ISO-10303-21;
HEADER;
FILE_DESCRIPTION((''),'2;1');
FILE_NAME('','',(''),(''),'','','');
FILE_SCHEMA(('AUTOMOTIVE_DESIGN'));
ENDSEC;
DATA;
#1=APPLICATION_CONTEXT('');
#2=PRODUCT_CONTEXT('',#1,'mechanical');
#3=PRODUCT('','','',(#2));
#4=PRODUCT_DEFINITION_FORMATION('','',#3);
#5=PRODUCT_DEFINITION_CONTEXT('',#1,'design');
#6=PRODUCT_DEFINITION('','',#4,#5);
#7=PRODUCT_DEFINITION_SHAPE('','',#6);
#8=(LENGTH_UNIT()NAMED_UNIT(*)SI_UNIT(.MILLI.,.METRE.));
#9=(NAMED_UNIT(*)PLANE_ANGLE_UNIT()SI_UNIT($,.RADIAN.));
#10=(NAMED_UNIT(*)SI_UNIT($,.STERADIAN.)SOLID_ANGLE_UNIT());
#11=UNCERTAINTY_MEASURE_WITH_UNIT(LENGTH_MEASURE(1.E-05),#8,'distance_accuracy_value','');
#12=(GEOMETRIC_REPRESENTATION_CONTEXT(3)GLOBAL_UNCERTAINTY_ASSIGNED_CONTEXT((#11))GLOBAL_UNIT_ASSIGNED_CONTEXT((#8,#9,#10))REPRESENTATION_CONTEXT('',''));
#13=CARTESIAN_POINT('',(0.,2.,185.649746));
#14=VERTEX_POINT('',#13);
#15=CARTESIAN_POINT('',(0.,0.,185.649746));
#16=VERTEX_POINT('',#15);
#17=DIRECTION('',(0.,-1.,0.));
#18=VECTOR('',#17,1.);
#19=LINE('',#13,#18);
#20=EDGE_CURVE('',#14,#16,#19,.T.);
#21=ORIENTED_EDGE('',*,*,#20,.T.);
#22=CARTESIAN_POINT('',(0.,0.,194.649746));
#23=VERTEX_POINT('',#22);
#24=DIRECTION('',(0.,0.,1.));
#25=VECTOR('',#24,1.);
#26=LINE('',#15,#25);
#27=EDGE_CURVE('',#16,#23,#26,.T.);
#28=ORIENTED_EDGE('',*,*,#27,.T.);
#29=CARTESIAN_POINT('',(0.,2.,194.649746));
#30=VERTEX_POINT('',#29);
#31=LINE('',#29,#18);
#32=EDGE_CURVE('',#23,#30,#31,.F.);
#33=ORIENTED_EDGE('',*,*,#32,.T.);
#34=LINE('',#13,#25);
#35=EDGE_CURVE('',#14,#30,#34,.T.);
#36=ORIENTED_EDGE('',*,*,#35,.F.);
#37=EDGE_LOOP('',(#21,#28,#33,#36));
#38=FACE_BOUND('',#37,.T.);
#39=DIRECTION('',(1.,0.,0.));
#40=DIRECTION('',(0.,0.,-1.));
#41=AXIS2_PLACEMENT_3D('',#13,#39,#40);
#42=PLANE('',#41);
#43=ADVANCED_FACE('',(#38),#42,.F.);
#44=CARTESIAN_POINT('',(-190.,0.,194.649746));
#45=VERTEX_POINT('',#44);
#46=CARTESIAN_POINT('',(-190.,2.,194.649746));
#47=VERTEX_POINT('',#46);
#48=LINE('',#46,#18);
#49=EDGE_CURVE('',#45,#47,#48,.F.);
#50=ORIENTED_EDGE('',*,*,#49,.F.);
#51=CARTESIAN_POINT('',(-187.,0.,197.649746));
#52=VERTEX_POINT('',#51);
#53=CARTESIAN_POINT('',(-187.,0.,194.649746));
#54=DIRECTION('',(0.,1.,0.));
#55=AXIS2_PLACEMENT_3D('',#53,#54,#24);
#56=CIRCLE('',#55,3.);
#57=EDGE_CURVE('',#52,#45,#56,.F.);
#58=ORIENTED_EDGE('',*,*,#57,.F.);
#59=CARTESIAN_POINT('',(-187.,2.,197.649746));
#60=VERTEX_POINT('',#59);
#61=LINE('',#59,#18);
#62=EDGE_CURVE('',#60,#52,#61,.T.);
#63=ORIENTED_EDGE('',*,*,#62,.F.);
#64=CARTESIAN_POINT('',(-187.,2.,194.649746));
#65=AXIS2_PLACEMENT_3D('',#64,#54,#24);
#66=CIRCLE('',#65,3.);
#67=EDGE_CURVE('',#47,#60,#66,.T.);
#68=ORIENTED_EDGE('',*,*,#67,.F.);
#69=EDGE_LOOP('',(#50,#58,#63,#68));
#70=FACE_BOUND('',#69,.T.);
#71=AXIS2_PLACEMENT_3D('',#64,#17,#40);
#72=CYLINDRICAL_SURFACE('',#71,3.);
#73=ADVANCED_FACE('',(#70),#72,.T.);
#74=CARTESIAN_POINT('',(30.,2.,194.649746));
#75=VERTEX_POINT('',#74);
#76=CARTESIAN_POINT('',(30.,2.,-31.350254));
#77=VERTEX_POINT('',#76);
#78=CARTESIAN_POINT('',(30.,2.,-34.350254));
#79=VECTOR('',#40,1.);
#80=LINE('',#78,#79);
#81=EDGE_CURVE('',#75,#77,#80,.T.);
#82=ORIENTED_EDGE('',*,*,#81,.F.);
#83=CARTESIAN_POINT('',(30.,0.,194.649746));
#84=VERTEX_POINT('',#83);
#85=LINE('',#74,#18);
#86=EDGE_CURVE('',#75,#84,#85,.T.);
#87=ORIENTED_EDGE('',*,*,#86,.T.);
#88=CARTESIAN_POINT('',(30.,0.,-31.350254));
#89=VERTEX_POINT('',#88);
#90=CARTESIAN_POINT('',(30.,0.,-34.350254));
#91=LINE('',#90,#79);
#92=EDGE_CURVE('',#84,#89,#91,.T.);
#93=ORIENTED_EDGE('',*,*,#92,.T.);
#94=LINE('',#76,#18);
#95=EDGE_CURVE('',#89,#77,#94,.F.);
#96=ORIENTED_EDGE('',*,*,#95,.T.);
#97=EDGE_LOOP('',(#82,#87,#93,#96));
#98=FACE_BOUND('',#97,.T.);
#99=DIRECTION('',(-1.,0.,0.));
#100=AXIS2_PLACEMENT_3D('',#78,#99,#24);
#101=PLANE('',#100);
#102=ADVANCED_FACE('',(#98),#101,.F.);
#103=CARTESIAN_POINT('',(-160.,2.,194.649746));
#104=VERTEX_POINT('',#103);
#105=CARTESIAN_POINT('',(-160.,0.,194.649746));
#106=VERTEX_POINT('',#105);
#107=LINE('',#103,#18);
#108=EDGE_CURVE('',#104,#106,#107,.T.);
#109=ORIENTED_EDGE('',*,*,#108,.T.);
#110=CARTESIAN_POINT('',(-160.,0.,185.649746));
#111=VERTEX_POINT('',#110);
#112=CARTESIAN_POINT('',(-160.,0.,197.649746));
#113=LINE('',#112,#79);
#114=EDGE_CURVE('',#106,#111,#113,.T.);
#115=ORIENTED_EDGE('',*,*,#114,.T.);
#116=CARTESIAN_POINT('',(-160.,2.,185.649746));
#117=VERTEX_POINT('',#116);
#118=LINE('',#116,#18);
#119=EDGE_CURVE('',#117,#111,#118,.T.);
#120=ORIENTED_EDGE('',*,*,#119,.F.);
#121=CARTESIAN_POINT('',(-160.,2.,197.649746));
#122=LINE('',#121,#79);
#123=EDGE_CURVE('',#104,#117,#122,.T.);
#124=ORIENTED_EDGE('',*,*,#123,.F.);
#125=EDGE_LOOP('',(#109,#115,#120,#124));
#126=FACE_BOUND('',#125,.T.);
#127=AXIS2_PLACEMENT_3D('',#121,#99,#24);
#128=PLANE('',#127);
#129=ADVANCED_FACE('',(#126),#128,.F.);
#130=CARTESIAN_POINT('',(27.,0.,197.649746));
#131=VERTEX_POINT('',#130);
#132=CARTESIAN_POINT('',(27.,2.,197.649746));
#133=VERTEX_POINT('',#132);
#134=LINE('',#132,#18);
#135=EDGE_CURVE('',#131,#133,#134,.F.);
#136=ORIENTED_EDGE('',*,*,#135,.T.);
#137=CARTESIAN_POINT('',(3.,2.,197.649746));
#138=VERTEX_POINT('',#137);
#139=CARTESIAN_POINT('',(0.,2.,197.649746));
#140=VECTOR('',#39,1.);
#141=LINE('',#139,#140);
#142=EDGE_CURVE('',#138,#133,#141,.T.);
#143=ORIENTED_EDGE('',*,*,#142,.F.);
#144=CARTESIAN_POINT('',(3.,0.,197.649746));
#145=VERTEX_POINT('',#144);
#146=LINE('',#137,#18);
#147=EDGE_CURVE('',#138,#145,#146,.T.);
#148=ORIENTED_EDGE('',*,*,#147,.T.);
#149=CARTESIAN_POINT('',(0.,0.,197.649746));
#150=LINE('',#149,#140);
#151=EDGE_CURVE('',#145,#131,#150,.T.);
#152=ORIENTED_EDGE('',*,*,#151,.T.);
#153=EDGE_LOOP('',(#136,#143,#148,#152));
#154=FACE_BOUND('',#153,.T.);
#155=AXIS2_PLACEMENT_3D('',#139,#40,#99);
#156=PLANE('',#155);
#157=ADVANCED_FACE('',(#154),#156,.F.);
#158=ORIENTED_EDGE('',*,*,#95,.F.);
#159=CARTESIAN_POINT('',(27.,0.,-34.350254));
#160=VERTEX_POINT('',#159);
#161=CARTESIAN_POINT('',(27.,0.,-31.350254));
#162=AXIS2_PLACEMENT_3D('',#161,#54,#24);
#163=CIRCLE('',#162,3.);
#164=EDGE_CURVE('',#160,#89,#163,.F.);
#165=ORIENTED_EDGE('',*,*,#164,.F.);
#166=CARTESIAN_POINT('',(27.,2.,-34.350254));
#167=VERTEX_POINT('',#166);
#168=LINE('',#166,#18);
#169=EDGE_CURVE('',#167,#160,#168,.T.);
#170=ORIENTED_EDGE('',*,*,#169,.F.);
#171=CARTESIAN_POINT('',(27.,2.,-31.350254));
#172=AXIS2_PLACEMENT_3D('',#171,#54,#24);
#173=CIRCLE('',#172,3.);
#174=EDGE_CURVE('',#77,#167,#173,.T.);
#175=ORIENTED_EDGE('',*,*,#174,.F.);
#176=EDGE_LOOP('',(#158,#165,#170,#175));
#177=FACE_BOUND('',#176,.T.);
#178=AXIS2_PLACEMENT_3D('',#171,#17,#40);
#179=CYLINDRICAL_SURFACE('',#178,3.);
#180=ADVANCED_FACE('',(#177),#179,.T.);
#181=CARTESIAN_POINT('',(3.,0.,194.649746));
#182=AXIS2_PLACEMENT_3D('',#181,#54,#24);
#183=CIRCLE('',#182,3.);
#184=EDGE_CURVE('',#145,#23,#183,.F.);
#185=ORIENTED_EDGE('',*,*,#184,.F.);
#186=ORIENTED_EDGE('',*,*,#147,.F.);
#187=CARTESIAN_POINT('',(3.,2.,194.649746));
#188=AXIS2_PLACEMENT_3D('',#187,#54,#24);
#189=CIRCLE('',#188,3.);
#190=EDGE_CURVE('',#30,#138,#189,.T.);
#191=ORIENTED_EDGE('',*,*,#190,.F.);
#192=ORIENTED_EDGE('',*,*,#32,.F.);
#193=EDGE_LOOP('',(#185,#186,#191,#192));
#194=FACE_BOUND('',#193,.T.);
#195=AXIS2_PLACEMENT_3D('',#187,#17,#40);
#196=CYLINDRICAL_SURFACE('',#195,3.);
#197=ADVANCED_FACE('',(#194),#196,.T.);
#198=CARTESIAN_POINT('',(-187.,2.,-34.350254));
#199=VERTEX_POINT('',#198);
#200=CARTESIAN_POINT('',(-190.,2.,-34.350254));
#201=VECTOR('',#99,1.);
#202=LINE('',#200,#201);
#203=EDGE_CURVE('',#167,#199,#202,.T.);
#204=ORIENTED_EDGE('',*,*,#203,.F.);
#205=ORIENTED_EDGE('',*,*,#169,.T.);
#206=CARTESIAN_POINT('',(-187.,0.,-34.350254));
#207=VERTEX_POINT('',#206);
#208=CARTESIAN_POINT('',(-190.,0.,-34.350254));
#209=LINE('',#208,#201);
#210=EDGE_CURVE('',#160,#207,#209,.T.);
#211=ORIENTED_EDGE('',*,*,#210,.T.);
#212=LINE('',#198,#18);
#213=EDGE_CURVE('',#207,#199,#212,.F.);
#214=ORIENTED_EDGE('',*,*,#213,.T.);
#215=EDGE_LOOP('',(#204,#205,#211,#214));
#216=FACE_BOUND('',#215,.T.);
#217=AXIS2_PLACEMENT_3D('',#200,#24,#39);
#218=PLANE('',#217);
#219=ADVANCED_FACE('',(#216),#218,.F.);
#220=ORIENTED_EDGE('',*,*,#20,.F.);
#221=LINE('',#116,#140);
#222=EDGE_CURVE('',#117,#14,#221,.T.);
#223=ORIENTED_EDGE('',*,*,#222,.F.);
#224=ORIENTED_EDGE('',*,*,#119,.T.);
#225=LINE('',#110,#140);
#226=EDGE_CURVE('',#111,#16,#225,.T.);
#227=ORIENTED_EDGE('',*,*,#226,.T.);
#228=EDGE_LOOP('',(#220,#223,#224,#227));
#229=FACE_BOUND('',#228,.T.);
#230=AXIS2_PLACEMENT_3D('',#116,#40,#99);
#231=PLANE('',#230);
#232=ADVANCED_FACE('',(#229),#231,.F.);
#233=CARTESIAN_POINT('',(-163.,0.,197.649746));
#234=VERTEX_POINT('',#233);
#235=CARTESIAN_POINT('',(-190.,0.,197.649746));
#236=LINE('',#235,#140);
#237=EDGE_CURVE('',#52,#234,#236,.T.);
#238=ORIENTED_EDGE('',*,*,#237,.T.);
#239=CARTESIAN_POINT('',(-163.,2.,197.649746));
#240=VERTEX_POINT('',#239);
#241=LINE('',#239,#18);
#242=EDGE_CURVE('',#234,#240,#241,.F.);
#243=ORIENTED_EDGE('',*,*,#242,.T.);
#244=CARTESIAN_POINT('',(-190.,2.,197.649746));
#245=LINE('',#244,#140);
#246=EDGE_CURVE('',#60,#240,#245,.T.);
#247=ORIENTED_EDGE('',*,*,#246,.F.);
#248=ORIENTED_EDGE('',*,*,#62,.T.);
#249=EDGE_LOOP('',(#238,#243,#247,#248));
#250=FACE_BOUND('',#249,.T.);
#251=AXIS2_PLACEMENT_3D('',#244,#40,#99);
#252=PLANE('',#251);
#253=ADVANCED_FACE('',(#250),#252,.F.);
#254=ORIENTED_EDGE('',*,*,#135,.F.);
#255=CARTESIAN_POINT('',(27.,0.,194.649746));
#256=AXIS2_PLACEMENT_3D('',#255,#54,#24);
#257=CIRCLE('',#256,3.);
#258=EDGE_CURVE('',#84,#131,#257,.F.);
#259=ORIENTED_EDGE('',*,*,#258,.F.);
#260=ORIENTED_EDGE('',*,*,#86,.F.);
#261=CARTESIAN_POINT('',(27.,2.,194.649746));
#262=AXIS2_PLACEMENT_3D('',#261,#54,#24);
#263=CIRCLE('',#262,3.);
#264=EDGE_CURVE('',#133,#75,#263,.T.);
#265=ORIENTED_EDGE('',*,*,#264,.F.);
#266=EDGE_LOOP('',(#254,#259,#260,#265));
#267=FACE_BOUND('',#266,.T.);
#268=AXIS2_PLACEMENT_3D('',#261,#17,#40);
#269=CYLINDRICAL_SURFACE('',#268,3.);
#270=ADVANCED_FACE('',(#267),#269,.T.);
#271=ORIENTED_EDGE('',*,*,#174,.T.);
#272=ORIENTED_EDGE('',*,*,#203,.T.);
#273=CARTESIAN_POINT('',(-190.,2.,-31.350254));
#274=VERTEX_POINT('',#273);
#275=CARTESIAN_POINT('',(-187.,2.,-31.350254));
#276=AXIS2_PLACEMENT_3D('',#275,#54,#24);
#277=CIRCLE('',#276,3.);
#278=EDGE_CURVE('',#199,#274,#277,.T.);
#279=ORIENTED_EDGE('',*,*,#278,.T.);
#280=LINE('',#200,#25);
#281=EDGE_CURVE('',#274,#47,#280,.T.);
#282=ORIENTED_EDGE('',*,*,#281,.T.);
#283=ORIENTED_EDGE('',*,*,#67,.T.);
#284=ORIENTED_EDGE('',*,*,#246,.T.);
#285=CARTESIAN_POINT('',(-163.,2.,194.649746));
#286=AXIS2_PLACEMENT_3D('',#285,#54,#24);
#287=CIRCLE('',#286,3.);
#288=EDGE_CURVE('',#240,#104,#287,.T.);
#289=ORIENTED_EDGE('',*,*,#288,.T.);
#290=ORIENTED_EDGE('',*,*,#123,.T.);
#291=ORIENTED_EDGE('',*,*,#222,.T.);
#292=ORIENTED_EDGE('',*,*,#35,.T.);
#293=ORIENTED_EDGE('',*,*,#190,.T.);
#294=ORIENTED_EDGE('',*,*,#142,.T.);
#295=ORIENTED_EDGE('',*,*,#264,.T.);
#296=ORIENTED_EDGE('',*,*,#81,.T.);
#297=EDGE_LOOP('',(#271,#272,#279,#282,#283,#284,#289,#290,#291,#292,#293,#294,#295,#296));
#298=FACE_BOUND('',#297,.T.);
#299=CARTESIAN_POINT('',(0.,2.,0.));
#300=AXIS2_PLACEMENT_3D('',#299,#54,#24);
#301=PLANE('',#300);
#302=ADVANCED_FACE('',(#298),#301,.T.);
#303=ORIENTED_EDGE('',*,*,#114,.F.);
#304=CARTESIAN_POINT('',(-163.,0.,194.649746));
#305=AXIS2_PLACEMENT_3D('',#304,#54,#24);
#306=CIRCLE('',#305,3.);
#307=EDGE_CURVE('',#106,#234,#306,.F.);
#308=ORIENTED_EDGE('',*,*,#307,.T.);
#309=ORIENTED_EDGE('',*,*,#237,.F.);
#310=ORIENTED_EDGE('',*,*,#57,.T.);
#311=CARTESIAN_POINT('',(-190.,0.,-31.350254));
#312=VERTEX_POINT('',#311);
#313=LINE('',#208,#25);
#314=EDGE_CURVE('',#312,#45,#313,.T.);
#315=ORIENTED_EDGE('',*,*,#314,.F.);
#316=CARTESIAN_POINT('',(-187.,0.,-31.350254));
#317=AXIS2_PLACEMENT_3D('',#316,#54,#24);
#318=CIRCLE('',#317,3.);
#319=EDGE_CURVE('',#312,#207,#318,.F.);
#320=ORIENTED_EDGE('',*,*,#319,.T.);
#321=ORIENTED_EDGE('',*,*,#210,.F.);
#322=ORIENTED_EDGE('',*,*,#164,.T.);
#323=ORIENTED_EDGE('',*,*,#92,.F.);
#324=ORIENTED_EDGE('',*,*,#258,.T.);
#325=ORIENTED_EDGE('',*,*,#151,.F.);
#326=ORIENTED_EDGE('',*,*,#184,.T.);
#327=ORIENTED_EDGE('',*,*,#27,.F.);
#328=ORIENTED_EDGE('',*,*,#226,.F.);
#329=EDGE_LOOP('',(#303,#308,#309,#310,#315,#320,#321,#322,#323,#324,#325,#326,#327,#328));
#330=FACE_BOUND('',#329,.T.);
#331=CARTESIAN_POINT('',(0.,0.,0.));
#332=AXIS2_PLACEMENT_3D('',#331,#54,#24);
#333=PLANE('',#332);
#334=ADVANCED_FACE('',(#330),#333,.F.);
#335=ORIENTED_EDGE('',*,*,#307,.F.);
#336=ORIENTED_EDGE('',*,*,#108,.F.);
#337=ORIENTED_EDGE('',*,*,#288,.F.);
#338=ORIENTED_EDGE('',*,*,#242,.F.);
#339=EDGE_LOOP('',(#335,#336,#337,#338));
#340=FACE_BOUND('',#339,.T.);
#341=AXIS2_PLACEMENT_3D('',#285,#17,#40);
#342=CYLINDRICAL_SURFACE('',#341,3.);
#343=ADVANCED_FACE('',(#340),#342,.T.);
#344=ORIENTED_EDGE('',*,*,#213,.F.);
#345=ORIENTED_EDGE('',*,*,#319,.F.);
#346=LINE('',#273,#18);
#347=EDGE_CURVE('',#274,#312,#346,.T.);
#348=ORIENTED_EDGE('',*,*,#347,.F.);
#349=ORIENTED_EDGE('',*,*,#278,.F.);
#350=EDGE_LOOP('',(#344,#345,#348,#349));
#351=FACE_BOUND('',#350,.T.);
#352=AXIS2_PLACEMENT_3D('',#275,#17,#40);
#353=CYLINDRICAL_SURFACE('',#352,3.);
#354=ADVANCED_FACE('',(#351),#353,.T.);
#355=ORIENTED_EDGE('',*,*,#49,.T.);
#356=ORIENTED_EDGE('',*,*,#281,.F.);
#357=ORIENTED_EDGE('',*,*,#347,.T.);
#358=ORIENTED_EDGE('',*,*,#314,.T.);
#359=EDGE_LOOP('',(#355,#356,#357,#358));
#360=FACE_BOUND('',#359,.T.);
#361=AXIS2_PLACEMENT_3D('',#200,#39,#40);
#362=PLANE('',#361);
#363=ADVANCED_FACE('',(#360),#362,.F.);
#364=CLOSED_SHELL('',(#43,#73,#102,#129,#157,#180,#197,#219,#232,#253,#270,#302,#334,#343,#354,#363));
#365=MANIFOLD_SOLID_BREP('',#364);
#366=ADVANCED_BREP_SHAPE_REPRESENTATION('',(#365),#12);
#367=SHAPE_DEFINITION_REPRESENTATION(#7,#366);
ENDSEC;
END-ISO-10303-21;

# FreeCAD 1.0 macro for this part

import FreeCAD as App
import Part
import Sketcher

V = App.Vector


def edges_at(feature, points):
    """Names of the edges that pass closest to the given points."""
    edges = feature.Shape.Edges
    near = lambda p: min(range(len(edges)), key=lambda i: edges[i].distToShape(Part.Vertex(*p))[0])
    return sorted({f"Edge{near(p) + 1}" for p in points})

doc = App.newDocument("Part")
params = doc.addObject("Spreadsheet::Sheet", "Params")
for row, (alias, value) in enumerate([
    ("sketch1_width", "160 mm"),
    ("sketch1_width2", "30 mm"),
    ("sketch1_height", "12 mm"),
    ("sketch1_height2", "232 mm"),
    ("pad1_length", "2 mm"),
    ("fillet_radius", "3 mm"),
], start=1):
    params.set(f"A{row}", alias)
    params.set(f"B{row}", "=" + value)
    params.setAlias(f"B{row}", alias)

body = doc.addObject("PartDesign::Body", "Body")

# Sketch on XZ plane
sketch1 = body.newObject("Sketcher::SketchObject", "Sketch")
sketch1.AttachmentSupport = (doc.getObject("XZ_Plane"), [""])
sketch1.MapMode = "FlatFace"
sketch1.addGeometry([
    Part.LineSegment(V(-160, 198, 0), V(-160, 186, 0)),  # 0
    Part.LineSegment(V(-160, 186, 0), V(0, 186, 0)),  # 1
    Part.LineSegment(V(0, 186, 0), V(0, 198, 0)),  # 2
    Part.LineSegment(V(0, 198, 0), V(30, 198, 0)),  # 3
    Part.LineSegment(V(30, 198, 0), V(30, -34, 0)),  # 4
    Part.LineSegment(V(30, -34, 0), V(-190, -34, 0)),  # 5
    Part.LineSegment(V(-190, -34, 0), V(-190, 198, 0)),  # 6
    Part.LineSegment(V(-190, 198, 0), V(-160, 198, 0)),  # 7
], False)
sketch1.addConstraint([
    Sketcher.Constraint("Coincident", 0, 2, 1, 1),
    Sketcher.Constraint("Coincident", 1, 2, 2, 1),
    Sketcher.Constraint("Coincident", 2, 2, 3, 1),
    Sketcher.Constraint("Coincident", 3, 2, 4, 1),
    Sketcher.Constraint("Coincident", 4, 2, 5, 1),
    Sketcher.Constraint("Coincident", 5, 2, 6, 1),
    Sketcher.Constraint("Coincident", 6, 2, 7, 1),
    Sketcher.Constraint("Coincident", 7, 2, 0, 1),
    Sketcher.Constraint("Vertical", 0),
    Sketcher.Constraint("Horizontal", 1),
    Sketcher.Constraint("Vertical", 2),
    Sketcher.Constraint("Horizontal", 3),
    Sketcher.Constraint("Vertical", 4),
    Sketcher.Constraint("Horizontal", 5),
    Sketcher.Constraint("Vertical", 6),
    Sketcher.Constraint("Horizontal", 7),
    Sketcher.Constraint("PointOnObject", 1, 2, -2),
    Sketcher.Constraint("Horizontal", 3, 2, 6, 2),
    Sketcher.Constraint("Equal", 3, 7),
    Sketcher.Constraint("DistanceX", 1, 1, 1, 2, 160.0),
    Sketcher.Constraint("DistanceX", 3, 1, 3, 2, 30.0),
    Sketcher.Constraint("DistanceY", 0, 2, 0, 1, 12.0),
    Sketcher.Constraint("DistanceY", 4, 2, 4, 1, 232.0),
    Sketcher.Constraint("DistanceY", -1, 1, 0, 2, 185.649746),
])
sketch1.setExpression("Constraints[19]", "Params.sketch1_width")
sketch1.setExpression("Constraints[20]", "Params.sketch1_width2")
sketch1.setExpression("Constraints[21]", "Params.sketch1_height")
sketch1.setExpression("Constraints[22]", "Params.sketch1_height2")
pad1 = body.newObject("PartDesign::Pad", "Pad")
pad1.Profile = sketch1
pad1.setExpression("Length", "Params.pad1_length")
pad1.Reversed = True
doc.recompute()

fillet = body.newObject("PartDesign::Fillet", "Fillet")
fillet.Base = (pad1, edges_at(pad1, [
    (-190, 1, -34.35),
    (30, 1, -34.35),
    (30, 1, 197.65),
    (0, 1, 197.65),
    (-160, 1, 197.65),
    (-190, 1, 197.65),
]))
fillet.setExpression("Radius", "Params.fillet_radius")

doc.recompute()
